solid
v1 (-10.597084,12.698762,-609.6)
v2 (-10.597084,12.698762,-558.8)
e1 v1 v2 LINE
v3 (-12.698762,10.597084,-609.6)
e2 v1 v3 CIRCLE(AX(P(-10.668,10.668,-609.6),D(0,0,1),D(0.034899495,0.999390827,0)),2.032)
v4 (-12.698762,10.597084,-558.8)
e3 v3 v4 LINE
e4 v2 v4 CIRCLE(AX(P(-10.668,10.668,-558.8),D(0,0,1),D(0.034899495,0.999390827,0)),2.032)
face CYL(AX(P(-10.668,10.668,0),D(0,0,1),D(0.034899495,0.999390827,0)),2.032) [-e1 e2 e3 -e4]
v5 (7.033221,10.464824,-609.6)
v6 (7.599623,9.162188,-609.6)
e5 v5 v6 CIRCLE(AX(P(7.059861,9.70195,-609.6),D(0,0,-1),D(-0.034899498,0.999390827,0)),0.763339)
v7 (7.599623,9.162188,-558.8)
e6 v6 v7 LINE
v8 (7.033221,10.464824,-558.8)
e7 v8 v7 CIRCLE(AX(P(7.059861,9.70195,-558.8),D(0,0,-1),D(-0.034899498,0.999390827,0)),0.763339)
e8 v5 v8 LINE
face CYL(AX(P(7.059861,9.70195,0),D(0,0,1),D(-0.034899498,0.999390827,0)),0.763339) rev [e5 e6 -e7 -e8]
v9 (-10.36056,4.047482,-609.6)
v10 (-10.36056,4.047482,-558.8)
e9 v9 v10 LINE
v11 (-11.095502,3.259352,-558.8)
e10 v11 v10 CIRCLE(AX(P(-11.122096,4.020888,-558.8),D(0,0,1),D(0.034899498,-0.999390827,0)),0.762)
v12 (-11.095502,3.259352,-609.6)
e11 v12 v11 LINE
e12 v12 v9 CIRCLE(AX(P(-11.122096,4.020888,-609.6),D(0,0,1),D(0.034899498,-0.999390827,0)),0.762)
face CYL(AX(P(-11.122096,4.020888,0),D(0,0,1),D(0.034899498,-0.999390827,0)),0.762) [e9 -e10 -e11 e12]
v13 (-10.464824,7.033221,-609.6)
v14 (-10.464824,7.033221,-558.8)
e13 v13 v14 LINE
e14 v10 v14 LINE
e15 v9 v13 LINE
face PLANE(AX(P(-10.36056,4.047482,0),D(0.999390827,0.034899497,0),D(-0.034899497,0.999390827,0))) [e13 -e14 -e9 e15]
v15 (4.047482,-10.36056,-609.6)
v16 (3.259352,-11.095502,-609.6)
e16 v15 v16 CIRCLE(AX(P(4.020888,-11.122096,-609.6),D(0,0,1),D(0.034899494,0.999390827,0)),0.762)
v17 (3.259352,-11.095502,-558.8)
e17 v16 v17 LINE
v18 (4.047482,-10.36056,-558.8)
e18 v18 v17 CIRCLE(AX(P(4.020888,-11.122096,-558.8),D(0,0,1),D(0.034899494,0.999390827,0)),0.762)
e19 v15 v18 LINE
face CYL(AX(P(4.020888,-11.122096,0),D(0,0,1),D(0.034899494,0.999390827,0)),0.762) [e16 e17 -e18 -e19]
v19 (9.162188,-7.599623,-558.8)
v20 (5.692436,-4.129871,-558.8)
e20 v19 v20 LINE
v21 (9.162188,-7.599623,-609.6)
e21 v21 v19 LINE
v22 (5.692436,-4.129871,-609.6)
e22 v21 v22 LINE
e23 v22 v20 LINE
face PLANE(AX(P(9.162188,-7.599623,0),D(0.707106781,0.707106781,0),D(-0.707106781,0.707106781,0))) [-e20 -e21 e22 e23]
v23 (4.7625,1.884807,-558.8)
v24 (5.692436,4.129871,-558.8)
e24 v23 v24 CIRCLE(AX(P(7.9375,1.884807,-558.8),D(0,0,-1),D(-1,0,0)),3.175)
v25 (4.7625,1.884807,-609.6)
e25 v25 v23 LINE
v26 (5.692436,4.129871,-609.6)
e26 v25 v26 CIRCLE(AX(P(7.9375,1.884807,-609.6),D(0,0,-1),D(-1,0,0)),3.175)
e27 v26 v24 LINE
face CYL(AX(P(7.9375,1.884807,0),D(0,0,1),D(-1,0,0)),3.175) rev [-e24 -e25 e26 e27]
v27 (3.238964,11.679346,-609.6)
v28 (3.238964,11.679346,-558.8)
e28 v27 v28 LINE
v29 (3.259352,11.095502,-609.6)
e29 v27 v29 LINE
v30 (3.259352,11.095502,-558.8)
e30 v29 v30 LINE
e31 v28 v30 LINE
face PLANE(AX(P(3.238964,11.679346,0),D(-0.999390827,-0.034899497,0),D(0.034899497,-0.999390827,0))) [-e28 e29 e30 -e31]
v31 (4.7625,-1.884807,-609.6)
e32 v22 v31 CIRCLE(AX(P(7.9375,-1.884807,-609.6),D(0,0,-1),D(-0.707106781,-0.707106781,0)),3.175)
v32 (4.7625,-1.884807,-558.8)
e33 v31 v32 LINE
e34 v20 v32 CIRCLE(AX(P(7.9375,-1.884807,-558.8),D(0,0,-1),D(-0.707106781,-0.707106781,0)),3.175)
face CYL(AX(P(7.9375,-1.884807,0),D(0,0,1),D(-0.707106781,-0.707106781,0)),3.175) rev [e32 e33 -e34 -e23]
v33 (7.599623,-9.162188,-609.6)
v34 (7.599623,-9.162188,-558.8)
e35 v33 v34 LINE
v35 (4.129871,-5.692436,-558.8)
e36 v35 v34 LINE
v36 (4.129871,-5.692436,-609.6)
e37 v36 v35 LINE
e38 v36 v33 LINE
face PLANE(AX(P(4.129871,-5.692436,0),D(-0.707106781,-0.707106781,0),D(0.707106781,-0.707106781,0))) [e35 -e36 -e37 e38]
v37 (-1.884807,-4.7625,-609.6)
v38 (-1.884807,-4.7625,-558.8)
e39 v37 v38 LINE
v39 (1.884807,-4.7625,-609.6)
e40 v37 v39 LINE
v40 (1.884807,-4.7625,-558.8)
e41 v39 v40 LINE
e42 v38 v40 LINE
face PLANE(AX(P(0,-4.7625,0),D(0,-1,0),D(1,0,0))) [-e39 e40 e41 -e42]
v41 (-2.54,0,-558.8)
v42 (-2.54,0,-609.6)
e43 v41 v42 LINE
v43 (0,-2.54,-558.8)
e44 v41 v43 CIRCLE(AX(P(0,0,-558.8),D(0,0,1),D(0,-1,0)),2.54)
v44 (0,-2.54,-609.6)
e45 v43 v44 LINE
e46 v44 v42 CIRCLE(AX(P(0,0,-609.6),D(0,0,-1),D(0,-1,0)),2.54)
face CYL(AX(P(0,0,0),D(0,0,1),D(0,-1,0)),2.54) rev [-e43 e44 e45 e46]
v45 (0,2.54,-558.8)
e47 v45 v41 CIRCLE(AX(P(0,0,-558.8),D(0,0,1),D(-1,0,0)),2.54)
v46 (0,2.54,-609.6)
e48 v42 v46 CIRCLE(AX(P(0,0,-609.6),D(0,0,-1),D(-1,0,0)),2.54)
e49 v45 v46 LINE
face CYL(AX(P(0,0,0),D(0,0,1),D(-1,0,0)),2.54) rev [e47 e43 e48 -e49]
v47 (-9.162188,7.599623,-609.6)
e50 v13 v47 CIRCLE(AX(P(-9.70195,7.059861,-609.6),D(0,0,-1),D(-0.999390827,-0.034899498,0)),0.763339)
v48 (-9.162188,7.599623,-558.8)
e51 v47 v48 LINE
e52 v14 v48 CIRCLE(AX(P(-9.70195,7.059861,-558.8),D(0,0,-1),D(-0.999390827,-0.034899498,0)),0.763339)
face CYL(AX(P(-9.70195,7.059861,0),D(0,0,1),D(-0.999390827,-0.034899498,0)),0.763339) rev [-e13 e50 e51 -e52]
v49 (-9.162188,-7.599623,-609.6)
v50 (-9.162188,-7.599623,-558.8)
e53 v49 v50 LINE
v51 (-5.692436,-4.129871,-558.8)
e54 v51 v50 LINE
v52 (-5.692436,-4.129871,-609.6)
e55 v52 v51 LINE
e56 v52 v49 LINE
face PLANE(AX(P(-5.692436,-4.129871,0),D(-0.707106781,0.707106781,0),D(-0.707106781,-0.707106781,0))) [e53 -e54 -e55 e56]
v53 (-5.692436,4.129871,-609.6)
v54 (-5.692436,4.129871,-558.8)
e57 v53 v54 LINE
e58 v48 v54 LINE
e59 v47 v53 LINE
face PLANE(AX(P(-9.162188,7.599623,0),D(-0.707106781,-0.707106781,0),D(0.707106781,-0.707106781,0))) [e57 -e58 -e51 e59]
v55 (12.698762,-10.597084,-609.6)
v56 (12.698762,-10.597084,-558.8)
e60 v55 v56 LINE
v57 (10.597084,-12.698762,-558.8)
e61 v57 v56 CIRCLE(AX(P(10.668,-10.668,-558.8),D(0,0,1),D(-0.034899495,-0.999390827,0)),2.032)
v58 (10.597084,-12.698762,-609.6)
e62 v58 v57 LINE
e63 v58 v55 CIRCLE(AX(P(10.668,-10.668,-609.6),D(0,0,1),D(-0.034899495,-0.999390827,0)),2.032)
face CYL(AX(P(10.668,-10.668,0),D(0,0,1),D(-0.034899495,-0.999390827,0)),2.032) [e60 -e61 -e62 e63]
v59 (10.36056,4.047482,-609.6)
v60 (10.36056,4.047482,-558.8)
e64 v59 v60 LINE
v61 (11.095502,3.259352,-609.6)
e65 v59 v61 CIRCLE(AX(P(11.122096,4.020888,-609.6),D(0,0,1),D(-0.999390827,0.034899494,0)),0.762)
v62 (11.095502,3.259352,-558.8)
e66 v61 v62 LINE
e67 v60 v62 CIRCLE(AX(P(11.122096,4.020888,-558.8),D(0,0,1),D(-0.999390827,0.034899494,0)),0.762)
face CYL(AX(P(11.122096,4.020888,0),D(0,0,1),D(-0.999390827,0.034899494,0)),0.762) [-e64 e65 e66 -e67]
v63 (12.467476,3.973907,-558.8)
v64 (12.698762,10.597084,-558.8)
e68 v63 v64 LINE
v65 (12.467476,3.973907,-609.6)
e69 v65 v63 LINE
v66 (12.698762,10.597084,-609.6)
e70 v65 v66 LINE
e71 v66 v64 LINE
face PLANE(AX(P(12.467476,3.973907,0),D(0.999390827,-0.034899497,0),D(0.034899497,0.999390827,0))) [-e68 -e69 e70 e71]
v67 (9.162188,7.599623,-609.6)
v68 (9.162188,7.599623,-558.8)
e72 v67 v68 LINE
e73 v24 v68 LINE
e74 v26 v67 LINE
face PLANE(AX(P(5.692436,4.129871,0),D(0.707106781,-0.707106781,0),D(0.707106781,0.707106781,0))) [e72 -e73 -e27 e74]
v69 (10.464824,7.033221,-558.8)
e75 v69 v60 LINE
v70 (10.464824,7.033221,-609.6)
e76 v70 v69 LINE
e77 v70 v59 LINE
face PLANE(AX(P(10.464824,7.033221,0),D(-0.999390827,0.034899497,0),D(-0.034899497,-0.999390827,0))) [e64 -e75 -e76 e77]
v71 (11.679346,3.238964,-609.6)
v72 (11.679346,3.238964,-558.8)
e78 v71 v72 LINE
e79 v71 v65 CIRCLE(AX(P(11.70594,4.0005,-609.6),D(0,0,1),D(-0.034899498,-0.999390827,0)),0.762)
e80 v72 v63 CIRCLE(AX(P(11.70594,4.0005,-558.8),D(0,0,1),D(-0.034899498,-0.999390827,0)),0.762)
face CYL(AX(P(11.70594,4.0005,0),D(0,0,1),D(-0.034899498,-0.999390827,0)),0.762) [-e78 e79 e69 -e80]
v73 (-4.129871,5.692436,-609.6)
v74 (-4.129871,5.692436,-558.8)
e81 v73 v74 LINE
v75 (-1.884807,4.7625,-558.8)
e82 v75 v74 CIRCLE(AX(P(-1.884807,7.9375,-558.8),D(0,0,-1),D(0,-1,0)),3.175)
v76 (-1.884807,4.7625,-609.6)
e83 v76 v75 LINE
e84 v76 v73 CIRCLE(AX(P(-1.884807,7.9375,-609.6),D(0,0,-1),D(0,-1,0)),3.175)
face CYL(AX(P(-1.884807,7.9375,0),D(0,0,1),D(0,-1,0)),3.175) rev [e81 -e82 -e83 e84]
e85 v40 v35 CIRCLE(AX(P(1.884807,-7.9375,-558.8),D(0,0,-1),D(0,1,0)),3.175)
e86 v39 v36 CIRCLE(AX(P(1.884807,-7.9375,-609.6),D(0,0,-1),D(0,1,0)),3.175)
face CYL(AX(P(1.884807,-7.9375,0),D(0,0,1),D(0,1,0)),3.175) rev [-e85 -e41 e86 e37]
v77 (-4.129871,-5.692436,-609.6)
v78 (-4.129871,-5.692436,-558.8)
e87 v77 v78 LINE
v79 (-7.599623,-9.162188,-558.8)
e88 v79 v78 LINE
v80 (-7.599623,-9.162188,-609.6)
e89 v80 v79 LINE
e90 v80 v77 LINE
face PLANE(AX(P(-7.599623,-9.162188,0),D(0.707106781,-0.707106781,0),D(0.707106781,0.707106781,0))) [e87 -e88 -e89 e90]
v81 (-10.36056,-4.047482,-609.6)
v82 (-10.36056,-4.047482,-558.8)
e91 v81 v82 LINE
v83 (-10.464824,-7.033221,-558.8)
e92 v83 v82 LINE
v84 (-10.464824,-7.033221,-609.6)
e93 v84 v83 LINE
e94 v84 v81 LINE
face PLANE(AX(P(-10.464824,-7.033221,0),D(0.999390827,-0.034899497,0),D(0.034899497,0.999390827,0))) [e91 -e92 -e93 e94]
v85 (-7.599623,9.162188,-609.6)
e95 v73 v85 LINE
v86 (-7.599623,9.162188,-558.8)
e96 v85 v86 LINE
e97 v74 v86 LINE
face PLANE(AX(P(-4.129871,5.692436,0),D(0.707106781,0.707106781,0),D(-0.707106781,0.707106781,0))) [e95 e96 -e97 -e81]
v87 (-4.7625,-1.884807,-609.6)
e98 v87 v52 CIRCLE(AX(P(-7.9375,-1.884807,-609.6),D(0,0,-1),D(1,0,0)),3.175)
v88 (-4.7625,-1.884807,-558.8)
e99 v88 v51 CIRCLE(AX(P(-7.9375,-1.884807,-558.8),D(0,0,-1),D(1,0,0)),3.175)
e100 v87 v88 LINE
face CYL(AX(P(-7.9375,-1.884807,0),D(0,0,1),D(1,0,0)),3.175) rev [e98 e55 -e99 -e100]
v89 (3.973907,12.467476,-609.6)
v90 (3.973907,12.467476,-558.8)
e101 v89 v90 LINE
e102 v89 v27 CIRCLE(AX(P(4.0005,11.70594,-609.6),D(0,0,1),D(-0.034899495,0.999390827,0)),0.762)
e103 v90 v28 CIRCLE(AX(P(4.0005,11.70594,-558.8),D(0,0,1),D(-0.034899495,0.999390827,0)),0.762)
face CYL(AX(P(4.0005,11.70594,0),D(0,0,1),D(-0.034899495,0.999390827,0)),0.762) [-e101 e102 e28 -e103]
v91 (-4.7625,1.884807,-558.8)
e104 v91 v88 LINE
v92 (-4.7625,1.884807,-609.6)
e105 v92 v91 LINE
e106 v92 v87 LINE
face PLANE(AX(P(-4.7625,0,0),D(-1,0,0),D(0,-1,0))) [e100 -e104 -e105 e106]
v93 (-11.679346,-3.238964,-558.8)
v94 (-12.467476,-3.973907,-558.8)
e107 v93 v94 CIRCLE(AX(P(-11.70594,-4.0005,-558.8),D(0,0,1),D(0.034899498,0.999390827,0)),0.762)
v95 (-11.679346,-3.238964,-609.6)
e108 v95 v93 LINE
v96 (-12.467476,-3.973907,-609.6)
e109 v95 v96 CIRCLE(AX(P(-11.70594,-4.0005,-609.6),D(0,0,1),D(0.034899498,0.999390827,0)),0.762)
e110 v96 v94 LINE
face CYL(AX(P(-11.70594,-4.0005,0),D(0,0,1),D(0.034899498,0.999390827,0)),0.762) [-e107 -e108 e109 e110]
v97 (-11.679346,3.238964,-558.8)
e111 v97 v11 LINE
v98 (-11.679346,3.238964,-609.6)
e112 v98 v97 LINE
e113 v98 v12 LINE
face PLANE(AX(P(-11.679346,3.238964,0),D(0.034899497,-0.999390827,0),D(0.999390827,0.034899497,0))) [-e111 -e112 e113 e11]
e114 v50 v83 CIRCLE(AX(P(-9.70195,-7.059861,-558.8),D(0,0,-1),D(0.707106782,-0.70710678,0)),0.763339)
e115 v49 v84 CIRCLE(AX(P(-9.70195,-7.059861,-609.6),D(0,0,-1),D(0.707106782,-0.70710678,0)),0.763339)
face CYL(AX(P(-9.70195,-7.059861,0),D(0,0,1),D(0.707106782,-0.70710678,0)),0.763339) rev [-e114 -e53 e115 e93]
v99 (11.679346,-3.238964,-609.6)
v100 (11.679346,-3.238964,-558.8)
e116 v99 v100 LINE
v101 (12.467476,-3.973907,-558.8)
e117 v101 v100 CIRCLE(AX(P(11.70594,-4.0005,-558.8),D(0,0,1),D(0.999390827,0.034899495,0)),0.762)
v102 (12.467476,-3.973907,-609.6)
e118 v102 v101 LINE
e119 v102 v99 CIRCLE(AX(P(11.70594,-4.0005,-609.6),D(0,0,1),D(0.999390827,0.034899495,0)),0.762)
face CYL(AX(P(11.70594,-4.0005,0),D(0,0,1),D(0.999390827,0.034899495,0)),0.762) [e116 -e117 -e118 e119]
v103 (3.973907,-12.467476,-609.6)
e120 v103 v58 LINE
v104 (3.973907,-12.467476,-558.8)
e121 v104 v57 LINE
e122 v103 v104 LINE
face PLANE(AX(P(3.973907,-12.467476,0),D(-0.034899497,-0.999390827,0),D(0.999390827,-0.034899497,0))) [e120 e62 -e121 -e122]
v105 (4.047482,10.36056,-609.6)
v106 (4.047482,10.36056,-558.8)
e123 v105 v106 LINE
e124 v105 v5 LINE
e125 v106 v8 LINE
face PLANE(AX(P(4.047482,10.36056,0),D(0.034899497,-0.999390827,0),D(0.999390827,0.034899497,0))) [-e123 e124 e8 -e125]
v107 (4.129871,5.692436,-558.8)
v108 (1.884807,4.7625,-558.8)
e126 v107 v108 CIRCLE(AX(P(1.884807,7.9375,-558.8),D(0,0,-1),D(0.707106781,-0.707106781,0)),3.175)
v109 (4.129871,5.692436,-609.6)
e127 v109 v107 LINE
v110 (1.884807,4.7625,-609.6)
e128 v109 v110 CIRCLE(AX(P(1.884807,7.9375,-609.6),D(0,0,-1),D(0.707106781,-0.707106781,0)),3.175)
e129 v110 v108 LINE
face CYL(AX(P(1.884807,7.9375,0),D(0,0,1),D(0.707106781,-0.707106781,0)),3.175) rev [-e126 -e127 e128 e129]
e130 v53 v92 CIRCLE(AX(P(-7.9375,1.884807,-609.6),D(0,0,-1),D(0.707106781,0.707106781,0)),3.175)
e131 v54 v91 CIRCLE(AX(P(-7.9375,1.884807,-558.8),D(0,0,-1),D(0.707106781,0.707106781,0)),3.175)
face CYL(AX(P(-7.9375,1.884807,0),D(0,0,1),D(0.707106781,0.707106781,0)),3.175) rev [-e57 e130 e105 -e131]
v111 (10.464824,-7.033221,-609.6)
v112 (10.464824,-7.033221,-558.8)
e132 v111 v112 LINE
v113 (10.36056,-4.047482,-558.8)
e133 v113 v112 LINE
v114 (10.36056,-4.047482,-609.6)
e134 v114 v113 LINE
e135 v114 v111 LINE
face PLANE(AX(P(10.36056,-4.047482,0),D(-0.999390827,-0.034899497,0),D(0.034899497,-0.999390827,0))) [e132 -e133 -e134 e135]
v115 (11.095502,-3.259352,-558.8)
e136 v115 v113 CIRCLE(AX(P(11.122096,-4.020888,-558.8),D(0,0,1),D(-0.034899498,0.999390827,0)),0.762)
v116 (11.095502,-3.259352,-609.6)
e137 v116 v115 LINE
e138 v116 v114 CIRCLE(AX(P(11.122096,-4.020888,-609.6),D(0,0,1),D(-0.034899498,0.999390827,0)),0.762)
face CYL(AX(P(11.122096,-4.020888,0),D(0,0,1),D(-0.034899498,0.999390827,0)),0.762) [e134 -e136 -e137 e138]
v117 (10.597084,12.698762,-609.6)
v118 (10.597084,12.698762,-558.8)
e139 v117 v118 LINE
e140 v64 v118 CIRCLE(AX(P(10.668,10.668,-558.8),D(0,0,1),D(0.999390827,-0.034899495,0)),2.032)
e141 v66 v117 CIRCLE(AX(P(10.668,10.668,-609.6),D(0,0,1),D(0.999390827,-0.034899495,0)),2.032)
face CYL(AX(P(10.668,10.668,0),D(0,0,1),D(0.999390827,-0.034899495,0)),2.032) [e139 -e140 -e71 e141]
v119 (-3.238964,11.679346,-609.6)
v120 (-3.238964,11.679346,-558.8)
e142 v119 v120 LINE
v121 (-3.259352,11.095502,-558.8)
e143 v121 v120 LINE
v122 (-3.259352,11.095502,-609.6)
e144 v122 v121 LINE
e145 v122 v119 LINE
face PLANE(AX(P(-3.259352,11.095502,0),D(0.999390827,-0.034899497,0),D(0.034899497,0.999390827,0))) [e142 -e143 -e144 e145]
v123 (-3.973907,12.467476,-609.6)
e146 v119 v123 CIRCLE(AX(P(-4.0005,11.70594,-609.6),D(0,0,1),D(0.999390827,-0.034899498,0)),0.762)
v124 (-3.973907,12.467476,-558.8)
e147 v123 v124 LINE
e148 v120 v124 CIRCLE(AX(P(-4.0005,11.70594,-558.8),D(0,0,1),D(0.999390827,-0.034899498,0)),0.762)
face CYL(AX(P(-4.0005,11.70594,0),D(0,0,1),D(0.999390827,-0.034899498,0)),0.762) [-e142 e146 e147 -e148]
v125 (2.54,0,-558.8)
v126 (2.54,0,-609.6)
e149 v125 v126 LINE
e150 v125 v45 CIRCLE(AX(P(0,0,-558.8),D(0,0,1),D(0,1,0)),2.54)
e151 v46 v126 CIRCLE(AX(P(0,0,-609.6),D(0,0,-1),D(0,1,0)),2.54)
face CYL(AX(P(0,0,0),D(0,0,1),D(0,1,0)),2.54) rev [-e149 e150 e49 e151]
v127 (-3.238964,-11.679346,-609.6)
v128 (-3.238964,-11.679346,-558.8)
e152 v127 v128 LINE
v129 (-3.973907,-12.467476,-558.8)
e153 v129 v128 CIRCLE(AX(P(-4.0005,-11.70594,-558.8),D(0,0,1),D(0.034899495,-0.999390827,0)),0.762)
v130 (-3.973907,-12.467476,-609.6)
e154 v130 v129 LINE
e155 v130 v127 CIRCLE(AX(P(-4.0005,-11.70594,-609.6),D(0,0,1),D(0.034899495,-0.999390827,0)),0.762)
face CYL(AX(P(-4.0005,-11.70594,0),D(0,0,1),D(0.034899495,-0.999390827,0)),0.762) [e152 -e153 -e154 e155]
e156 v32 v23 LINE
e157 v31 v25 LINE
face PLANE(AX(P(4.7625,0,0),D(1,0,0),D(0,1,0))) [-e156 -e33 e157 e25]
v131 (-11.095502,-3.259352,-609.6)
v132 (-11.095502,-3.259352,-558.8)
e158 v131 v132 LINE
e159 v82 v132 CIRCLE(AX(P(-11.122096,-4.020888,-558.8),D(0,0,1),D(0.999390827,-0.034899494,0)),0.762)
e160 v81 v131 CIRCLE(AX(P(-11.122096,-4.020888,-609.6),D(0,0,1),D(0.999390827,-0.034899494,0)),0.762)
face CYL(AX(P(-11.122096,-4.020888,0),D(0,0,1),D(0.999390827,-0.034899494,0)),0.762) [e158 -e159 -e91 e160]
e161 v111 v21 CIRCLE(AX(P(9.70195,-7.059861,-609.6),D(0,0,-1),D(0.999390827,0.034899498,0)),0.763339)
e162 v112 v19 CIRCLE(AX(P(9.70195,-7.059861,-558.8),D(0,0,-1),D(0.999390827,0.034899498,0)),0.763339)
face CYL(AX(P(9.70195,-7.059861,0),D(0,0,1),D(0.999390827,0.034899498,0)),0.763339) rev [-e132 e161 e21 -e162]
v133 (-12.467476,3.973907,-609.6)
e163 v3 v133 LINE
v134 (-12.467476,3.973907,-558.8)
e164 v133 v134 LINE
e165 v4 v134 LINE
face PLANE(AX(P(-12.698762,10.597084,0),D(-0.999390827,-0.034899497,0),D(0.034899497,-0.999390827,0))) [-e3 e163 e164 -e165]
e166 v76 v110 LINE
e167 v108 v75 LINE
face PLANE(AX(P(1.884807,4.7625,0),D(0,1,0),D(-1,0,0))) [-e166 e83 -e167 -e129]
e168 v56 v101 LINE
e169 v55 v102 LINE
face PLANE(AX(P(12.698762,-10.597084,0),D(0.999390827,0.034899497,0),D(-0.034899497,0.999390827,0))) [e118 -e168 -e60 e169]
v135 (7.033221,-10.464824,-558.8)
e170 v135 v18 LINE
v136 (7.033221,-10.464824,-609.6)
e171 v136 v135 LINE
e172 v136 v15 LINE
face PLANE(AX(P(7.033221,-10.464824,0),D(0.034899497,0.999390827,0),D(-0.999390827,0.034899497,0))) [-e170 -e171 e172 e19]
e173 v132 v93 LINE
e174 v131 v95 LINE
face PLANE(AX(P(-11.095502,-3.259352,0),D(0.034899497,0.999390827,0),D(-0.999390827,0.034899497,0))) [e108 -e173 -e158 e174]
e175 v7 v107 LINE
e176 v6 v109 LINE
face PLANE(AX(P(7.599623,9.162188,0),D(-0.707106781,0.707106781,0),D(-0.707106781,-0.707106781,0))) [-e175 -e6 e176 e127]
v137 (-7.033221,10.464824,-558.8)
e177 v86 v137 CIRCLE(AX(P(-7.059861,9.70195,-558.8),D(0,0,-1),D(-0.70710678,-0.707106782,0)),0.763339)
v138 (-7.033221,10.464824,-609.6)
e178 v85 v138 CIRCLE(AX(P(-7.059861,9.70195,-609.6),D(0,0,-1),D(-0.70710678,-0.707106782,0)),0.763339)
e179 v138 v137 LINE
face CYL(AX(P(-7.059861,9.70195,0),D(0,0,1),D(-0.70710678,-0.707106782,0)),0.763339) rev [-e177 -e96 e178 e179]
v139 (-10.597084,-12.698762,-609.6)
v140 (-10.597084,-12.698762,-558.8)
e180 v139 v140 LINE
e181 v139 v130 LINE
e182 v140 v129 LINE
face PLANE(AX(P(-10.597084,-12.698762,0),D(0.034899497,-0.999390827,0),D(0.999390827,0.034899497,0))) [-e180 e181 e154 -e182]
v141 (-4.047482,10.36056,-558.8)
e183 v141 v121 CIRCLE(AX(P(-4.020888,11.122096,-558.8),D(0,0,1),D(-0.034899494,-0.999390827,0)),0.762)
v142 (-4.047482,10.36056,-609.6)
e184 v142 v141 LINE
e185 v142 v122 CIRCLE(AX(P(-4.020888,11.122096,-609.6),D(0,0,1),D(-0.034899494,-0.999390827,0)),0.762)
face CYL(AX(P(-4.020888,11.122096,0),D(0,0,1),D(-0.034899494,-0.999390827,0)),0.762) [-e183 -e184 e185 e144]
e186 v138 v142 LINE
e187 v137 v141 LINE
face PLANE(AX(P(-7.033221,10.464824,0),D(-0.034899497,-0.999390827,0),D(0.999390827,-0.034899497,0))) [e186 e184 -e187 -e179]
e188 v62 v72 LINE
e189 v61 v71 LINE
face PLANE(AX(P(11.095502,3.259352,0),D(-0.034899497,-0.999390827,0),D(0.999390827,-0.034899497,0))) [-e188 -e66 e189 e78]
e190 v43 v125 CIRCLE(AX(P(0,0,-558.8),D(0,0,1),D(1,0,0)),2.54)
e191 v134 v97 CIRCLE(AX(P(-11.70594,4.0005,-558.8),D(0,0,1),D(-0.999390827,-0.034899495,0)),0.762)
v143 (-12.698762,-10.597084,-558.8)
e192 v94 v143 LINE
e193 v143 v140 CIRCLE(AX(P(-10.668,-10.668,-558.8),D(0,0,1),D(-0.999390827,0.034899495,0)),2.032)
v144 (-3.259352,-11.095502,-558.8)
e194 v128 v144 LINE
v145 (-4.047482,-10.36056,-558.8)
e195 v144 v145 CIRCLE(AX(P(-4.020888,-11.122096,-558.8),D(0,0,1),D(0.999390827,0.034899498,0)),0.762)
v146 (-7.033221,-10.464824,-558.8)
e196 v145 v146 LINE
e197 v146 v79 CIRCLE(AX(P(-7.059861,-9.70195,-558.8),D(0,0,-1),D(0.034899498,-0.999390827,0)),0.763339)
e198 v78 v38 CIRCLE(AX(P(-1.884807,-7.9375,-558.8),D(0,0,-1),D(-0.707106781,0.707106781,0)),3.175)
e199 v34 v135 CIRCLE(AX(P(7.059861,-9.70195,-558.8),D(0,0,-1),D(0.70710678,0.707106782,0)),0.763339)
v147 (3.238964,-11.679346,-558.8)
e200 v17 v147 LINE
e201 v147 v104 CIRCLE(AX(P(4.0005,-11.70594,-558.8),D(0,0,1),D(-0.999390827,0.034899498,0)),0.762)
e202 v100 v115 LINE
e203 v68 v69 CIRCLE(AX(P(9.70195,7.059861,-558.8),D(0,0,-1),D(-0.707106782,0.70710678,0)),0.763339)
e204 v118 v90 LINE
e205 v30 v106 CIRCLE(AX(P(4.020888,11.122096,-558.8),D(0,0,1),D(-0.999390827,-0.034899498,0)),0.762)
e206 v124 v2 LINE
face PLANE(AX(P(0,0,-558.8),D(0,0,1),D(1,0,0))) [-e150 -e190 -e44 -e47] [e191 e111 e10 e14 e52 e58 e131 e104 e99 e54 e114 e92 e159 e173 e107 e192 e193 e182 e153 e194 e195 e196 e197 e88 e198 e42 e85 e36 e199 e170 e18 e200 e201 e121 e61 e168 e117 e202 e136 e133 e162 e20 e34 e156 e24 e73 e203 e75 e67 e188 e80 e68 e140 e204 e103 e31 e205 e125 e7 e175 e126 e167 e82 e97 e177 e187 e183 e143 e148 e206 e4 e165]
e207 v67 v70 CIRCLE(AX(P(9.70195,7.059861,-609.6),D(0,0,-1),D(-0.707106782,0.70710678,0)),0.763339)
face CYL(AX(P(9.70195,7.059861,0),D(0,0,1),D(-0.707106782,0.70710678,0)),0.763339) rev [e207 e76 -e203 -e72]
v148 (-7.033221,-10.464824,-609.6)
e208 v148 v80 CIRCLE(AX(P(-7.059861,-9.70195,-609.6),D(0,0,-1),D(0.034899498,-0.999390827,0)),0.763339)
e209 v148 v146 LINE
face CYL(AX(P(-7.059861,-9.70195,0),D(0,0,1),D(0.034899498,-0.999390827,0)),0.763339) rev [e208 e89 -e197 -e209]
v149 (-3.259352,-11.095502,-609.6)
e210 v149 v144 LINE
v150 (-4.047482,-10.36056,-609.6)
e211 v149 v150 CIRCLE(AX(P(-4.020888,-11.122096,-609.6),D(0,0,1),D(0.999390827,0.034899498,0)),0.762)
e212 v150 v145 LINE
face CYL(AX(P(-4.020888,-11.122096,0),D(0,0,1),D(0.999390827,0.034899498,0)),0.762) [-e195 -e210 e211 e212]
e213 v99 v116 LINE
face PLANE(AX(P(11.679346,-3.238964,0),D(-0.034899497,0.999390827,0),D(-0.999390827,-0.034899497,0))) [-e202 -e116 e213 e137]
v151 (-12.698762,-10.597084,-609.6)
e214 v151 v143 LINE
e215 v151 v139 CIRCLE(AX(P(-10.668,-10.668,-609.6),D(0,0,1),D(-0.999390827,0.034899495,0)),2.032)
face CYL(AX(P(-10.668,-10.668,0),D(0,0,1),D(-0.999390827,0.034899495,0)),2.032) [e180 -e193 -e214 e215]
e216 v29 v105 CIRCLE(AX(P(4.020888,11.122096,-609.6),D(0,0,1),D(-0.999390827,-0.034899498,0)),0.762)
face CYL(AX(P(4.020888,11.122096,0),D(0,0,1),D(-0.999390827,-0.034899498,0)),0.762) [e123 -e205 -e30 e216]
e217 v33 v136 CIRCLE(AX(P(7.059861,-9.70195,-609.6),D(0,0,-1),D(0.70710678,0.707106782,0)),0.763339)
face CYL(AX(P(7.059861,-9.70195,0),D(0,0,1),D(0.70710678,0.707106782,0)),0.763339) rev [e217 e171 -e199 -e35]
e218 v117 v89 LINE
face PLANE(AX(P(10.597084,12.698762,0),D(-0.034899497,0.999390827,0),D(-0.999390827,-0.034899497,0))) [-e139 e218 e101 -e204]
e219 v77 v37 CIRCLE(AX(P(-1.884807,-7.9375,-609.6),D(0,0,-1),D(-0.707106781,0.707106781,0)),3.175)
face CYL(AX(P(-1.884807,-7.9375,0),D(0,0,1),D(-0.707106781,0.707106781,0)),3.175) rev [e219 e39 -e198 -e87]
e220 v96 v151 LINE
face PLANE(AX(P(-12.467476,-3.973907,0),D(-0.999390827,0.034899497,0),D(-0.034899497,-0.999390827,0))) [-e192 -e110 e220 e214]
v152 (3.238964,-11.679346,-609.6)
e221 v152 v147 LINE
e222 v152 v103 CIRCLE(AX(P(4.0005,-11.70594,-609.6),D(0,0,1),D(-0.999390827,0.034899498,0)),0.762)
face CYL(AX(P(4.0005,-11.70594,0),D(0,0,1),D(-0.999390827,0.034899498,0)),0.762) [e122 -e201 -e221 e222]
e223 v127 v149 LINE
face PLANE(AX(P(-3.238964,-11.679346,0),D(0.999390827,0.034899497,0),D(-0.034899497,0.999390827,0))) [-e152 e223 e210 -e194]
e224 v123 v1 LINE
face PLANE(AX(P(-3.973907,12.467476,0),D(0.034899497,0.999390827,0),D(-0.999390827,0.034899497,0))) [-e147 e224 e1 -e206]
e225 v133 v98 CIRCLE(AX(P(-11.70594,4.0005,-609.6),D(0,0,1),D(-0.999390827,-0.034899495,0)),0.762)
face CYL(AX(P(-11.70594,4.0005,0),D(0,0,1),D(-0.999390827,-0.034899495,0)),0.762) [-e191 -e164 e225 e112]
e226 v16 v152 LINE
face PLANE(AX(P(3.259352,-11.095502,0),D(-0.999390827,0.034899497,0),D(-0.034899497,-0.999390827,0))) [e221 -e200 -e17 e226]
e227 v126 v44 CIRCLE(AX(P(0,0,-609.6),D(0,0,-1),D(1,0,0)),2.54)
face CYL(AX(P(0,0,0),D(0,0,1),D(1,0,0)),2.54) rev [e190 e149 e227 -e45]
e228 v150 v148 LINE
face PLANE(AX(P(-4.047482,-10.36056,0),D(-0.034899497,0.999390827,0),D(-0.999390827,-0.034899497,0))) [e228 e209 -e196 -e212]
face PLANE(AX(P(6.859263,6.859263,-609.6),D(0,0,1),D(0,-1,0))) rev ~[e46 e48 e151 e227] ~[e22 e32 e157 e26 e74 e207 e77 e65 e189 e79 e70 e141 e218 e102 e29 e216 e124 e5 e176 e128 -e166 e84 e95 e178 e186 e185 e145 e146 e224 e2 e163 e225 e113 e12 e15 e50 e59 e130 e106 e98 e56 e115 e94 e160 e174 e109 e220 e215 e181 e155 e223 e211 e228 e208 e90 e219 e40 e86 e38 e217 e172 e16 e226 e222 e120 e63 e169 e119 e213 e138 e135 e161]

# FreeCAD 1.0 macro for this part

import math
import FreeCAD as App
import Part
import Sketcher
Q = App.Units.Quantity

doc = App.newDocument("Part")
body = doc.addObject("PartDesign::Body", "Body")

# Sketch on XY plane
sketch1 = doc.addObject("Sketcher::SketchObject", "Sketch")
body.addObject(sketch1)
sketch1.AttachmentSupport = (doc.XY_Plane, [""])
sketch1.MapMode = "FlatFace"
sketch1.addGeometry([
    Part.LineSegment(App.Vector(0, 4.7625, 0), App.Vector(-1.884807, 4.7625, 0)),  # 0
    Part.ArcOfCircle(Part.Circle(App.Vector(-1.884807, 7.9375, 0), App.Vector(0, 0, 1), 3.175), math.radians(-135), math.radians(-90)),  # 1
    Part.LineSegment(App.Vector(-4.129871, 5.692436, 0), App.Vector(-7.599623, 9.162188, 0)),  # 2
    Part.ArcOfCircle(Part.Circle(App.Vector(-7.059861, 9.70195, 0), App.Vector(0, 0, 1), 0.763339), math.radians(88), math.radians(225)),  # 3
    Part.LineSegment(App.Vector(-7.033221, 10.464824, 0), App.Vector(-4.047482, 10.36056, 0)),  # 4
    Part.ArcOfCircle(Part.Circle(App.Vector(-4.020888, 11.122096, 0), App.Vector(0, 0, 1), 0.762), math.radians(-92), math.radians(-2)),  # 5
    Part.LineSegment(App.Vector(-3.259352, 11.095502, 0), App.Vector(-3.238964, 11.679346, 0)),  # 6
    Part.ArcOfCircle(Part.Circle(App.Vector(-4.0005, 11.70594, 0), App.Vector(0, 0, 1), 0.762), math.radians(-2), math.radians(88)),  # 7
    Part.LineSegment(App.Vector(-3.973907, 12.467476, 0), App.Vector(-10.597084, 12.698762, 0)),  # 8
    Part.ArcOfCircle(Part.Circle(App.Vector(-10.668, 10.668, 0), App.Vector(0, 0, 1), 2.032), math.radians(88), math.radians(182)),  # 9
    Part.LineSegment(App.Vector(-12.698762, 10.597084, 0), App.Vector(-12.467476, 3.973907, 0)),  # 10
    Part.ArcOfCircle(Part.Circle(App.Vector(-11.70594, 4.0005, 0), App.Vector(0, 0, 1), 0.762), math.radians(-178), math.radians(-88)),  # 11
    Part.LineSegment(App.Vector(-11.679346, 3.238964, 0), App.Vector(-11.095502, 3.259352, 0)),  # 12
    Part.ArcOfCircle(Part.Circle(App.Vector(-11.122096, 4.020888, 0), App.Vector(0, 0, 1), 0.762), math.radians(-88), math.radians(2)),  # 13
    Part.LineSegment(App.Vector(-10.36056, 4.047482, 0), App.Vector(-10.464824, 7.033221, 0)),  # 14
    Part.ArcOfCircle(Part.Circle(App.Vector(-9.70195, 7.059861, 0), App.Vector(0, 0, 1), 0.763339), math.radians(45), math.radians(182)),  # 15
    Part.LineSegment(App.Vector(-9.162188, 7.599623, 0), App.Vector(-5.692436, 4.129871, 0)),  # 16
    Part.ArcOfCircle(Part.Circle(App.Vector(-7.9375, 1.884807, 0), App.Vector(0, 0, 1), 3.175), math.radians(0), math.radians(45)),  # 17
    Part.LineSegment(App.Vector(-4.7625, 1.884807, 0), App.Vector(-4.7625, 0, 0)),  # 18
    Part.LineSegment(App.Vector(-4.7625, 0, 0), App.Vector(-2.54, 0, 0)),  # 19
    Part.ArcOfCircle(Part.Circle(App.Vector(0, 0, 0), App.Vector(0, 0, 1), 2.54), math.radians(90), math.radians(180)),  # 20
    Part.LineSegment(App.Vector(0, 2.54, 0), App.Vector(0, 4.7625, 0)),  # 21
], False)
sketch1.addConstraint([
    Sketcher.Constraint("Tangent", 0, 2, 1, 2),
    Sketcher.Constraint("Tangent", 1, 1, 2, 1),
    Sketcher.Constraint("Tangent", 2, 2, 3, 2),
    Sketcher.Constraint("Tangent", 3, 1, 4, 1),
    Sketcher.Constraint("Tangent", 4, 2, 5, 1),
    Sketcher.Constraint("Tangent", 5, 2, 6, 1),
    Sketcher.Constraint("Tangent", 6, 2, 7, 1),
    Sketcher.Constraint("Tangent", 7, 2, 8, 1),
    Sketcher.Constraint("Tangent", 8, 2, 9, 1),
    Sketcher.Constraint("Tangent", 9, 2, 10, 1),
    Sketcher.Constraint("Tangent", 10, 2, 11, 1),
    Sketcher.Constraint("Tangent", 11, 2, 12, 1),
    Sketcher.Constraint("Tangent", 12, 2, 13, 1),
    Sketcher.Constraint("Tangent", 13, 2, 14, 1),
    Sketcher.Constraint("Tangent", 14, 2, 15, 2),
    Sketcher.Constraint("Tangent", 15, 1, 16, 1),
    Sketcher.Constraint("Tangent", 16, 2, 17, 2),
    Sketcher.Constraint("Tangent", 17, 1, 18, 1),
    Sketcher.Constraint("Coincident", 18, 2, 19, 1),
    Sketcher.Constraint("Coincident", 19, 2, 20, 2),
    Sketcher.Constraint("Coincident", 20, 1, 21, 1),
    Sketcher.Constraint("Coincident", 21, 2, 0, 1),
    Sketcher.Constraint("Horizontal", 0),
    Sketcher.Constraint("Vertical", 18),
    Sketcher.Constraint("Horizontal", 19),
    Sketcher.Constraint("Vertical", 21),
    Sketcher.Constraint("Coincident", 20, 3, -1, 1),
    Sketcher.Constraint("Equal", 5, 7),
    Sketcher.Constraint("Equal", 7, 11),
    Sketcher.Constraint("Equal", 11, 13),
    Sketcher.Constraint("Equal", 3, 15),
    Sketcher.Constraint("Equal", 1, 17),
    Sketcher.Constraint("PointOnObject", 18, 2, -1),
    Sketcher.Constraint("PointOnObject", 20, 1, -2),
    Sketcher.Constraint("Perpendicular", 4, 6),
    Sketcher.Constraint("Perpendicular", 6, 8),
    Sketcher.Constraint("Perpendicular", 10, 12),
    Sketcher.Constraint("Perpendicular", 12, 14),
    Sketcher.Constraint("Parallel", 2, 16),
    Sketcher.Constraint("Equal", 0, 18),
    Sketcher.Constraint("Equal", 19, 21),
    Sketcher.Constraint("Equal", 8, 10),
    Sketcher.Constraint("Equal", 6, 12),
    Sketcher.Constraint("Equal", 4, 14),
    Sketcher.Constraint("Equal", 2, 16),
    Sketcher.Constraint("Radius", 20, Q("0.1 in")),
    Sketcher.Constraint("Radius", 5, Q("0.03 in")),
    Sketcher.Constraint("Radius", 9, Q("0.08 in")),
    Sketcher.Constraint("Angle", 2, Q("135 deg")),
    Sketcher.Constraint("Angle", 4, Q("-2 deg")),
    Sketcher.Constraint("Radius", 1, Q("0.125 in")),
    Sketcher.Constraint("DistanceX", 9, 3, -1, 1, Q("0.42 in")),
    Sketcher.Constraint("Distance", 6, Q("0.023 in")),
    Sketcher.Constraint("DistanceX", 19, 1, 19, 2, Q("0.0875 in")),
    Sketcher.Constraint("Radius", 3, Q("0.763339 mm")),
    Sketcher.Constraint("DistanceY", 11, 3, 1, 3, Q("0.155 in")),
    Sketcher.Constraint("DistanceY", 15, 3, 8, 2, Q("5.638901 mm")),
])
pad1 = doc.addObject("PartDesign::Pad", "Pad")
body.addObject(pad1)
pad1.Profile = sketch1
pad1.Length = Q("48 in")
pad1.Midplane = True
doc.recompute()

polarpattern = doc.addObject("PartDesign::PolarPattern", "PolarPattern")
body.addObject(polarpattern)
polarpattern.Originals = [pad1]
polarpattern.Axis = (doc.Z_Axis, [""])
polarpattern.Angle = 360
polarpattern.Occurrences = 4
body.Tip = polarpattern

# Sketch on XY plane
sketch2 = doc.addObject("Sketcher::SketchObject", "Sketch001")
body.addObject(sketch2)
sketch2.AttachmentSupport = (doc.XY_Plane, [""])
sketch2.MapMode = "FlatFace"
sketch2.AttachmentOffset = App.Placement(App.Vector(0, 0, 24 * 25.4), App.Rotation())
sketch2.addGeometry([
    Part.LineSegment(App.Vector(1.884807, 4.7625, 0), App.Vector(-1.884807, 4.7625, 0)),  # 0
    Part.ArcOfCircle(Part.Circle(App.Vector(-1.884807, 7.9375, 0), App.Vector(0, 0, 1), 3.175), math.radians(-135), math.radians(-90)),  # 1
    Part.LineSegment(App.Vector(-4.129871, 5.692436, 0), App.Vector(-7.599623, 9.162188, 0)),  # 2
    Part.ArcOfCircle(Part.Circle(App.Vector(-7.059861, 9.70195, 0), App.Vector(0, 0, 1), 0.763339), math.radians(88), math.radians(225)),  # 3
    Part.LineSegment(App.Vector(-7.033221, 10.464824, 0), App.Vector(-4.047482, 10.36056, 0)),  # 4
    Part.ArcOfCircle(Part.Circle(App.Vector(-4.020888, 11.122096, 0), App.Vector(0, 0, 1), 0.762), math.radians(-92), math.radians(-2)),  # 5
    Part.LineSegment(App.Vector(-3.259352, 11.095502, 0), App.Vector(-3.238964, 11.679346, 0)),  # 6
    Part.ArcOfCircle(Part.Circle(App.Vector(-4.0005, 11.70594, 0), App.Vector(0, 0, 1), 0.762), math.radians(-2), math.radians(88)),  # 7
    Part.LineSegment(App.Vector(-3.973907, 12.467476, 0), App.Vector(-10.597084, 12.698762, 0)),  # 8
    Part.ArcOfCircle(Part.Circle(App.Vector(-10.668, 10.668, 0), App.Vector(0, 0, 1), 2.032), math.radians(88), math.radians(182)),  # 9
    Part.LineSegment(App.Vector(-12.698762, 10.597084, 0), App.Vector(-12.467476, 3.973907, 0)),  # 10
    Part.ArcOfCircle(Part.Circle(App.Vector(-11.70594, 4.0005, 0), App.Vector(0, 0, 1), 0.762), math.radians(-178), math.radians(-88)),  # 11
    Part.LineSegment(App.Vector(-11.679346, 3.238964, 0), App.Vector(-11.095502, 3.259352, 0)),  # 12
    Part.ArcOfCircle(Part.Circle(App.Vector(-11.122096, 4.020888, 0), App.Vector(0, 0, 1), 0.762), math.radians(-88), math.radians(2)),  # 13
    Part.LineSegment(App.Vector(-10.36056, 4.047482, 0), App.Vector(-10.464824, 7.033221, 0)),  # 14
    Part.ArcOfCircle(Part.Circle(App.Vector(-9.70195, 7.059861, 0), App.Vector(0, 0, 1), 0.763339), math.radians(45), math.radians(182)),  # 15
    Part.LineSegment(App.Vector(-9.162188, 7.599623, 0), App.Vector(-5.692436, 4.129871, 0)),  # 16
    Part.ArcOfCircle(Part.Circle(App.Vector(-7.9375, 1.884807, 0), App.Vector(0, 0, 1), 3.175), math.radians(0), math.radians(45)),  # 17
    Part.LineSegment(App.Vector(-4.7625, 1.884807, 0), App.Vector(-4.7625, -1.884807, 0)),  # 18
    Part.ArcOfCircle(Part.Circle(App.Vector(-7.9375, -1.884807, 0), App.Vector(0, 0, 1), 3.175), math.radians(-45), math.radians(0)),  # 19
    Part.LineSegment(App.Vector(-5.692436, -4.129871, 0), App.Vector(-9.162188, -7.599623, 0)),  # 20
    Part.ArcOfCircle(Part.Circle(App.Vector(-9.70195, -7.059861, 0), App.Vector(0, 0, 1), 0.763339), math.radians(178), math.radians(315)),  # 21
    Part.LineSegment(App.Vector(-10.464824, -7.033221, 0), App.Vector(-10.36056, -4.047482, 0)),  # 22
    Part.ArcOfCircle(Part.Circle(App.Vector(-11.122096, -4.020888, 0), App.Vector(0, 0, 1), 0.762), math.radians(-2), math.radians(88)),  # 23
    Part.LineSegment(App.Vector(-11.095502, -3.259352, 0), App.Vector(-11.679346, -3.238964, 0)),  # 24
    Part.ArcOfCircle(Part.Circle(App.Vector(-11.70594, -4.0005, 0), App.Vector(0, 0, 1), 0.762), math.radians(88), math.radians(178)),  # 25
    Part.LineSegment(App.Vector(-12.467476, -3.973907, 0), App.Vector(-12.698762, -10.597084, 0)),  # 26
    Part.ArcOfCircle(Part.Circle(App.Vector(-10.668, -10.668, 0), App.Vector(0, 0, 1), 2.032), math.radians(178), math.radians(272)),  # 27
    Part.LineSegment(App.Vector(-10.597084, -12.698762, 0), App.Vector(-3.973907, -12.467476, 0)),  # 28
    Part.ArcOfCircle(Part.Circle(App.Vector(-4.0005, -11.70594, 0), App.Vector(0, 0, 1), 0.762), math.radians(-88), math.radians(2)),  # 29
    Part.LineSegment(App.Vector(-3.238964, -11.679346, 0), App.Vector(-3.259352, -11.095502, 0)),  # 30
    Part.ArcOfCircle(Part.Circle(App.Vector(-4.020888, -11.122096, 0), App.Vector(0, 0, 1), 0.762), math.radians(2), math.radians(92)),  # 31
    Part.LineSegment(App.Vector(-4.047482, -10.36056, 0), App.Vector(-7.033221, -10.464824, 0)),  # 32
    Part.ArcOfCircle(Part.Circle(App.Vector(-7.059861, -9.70195, 0), App.Vector(0, 0, 1), 0.763339), math.radians(135), math.radians(272)),  # 33
    Part.LineSegment(App.Vector(-7.599623, -9.162188, 0), App.Vector(-4.129871, -5.692436, 0)),  # 34
    Part.ArcOfCircle(Part.Circle(App.Vector(-1.884807, -7.9375, 0), App.Vector(0, 0, 1), 3.175), math.radians(90), math.radians(135)),  # 35
    Part.LineSegment(App.Vector(-1.884807, -4.7625, 0), App.Vector(1.884807, -4.7625, 0)),  # 36
    Part.ArcOfCircle(Part.Circle(App.Vector(1.884807, -7.9375, 0), App.Vector(0, 0, 1), 3.175), math.radians(45), math.radians(90)),  # 37
    Part.LineSegment(App.Vector(4.129871, -5.692436, 0), App.Vector(7.599623, -9.162188, 0)),  # 38
    Part.ArcOfCircle(Part.Circle(App.Vector(7.059861, -9.70195, 0), App.Vector(0, 0, 1), 0.763339), math.radians(-92), math.radians(45)),  # 39
    Part.LineSegment(App.Vector(7.033221, -10.464824, 0), App.Vector(4.047482, -10.36056, 0)),  # 40
    Part.ArcOfCircle(Part.Circle(App.Vector(4.020888, -11.122096, 0), App.Vector(0, 0, 1), 0.762), math.radians(88), math.radians(178)),  # 41
    Part.LineSegment(App.Vector(3.259352, -11.095502, 0), App.Vector(3.238964, -11.679346, 0)),  # 42
    Part.ArcOfCircle(Part.Circle(App.Vector(4.0005, -11.70594, 0), App.Vector(0, 0, 1), 0.762), math.radians(178), math.radians(268)),  # 43
    Part.LineSegment(App.Vector(3.973907, -12.467476, 0), App.Vector(10.597084, -12.698762, 0)),  # 44
    Part.ArcOfCircle(Part.Circle(App.Vector(10.668, -10.668, 0), App.Vector(0, 0, 1), 2.032), math.radians(-92), math.radians(2)),  # 45
    Part.LineSegment(App.Vector(12.698762, -10.597084, 0), App.Vector(12.467476, -3.973907, 0)),  # 46
    Part.ArcOfCircle(Part.Circle(App.Vector(11.70594, -4.0005, 0), App.Vector(0, 0, 1), 0.762), math.radians(2), math.radians(92)),  # 47
    Part.LineSegment(App.Vector(11.679346, -3.238964, 0), App.Vector(11.095502, -3.259352, 0)),  # 48
    Part.ArcOfCircle(Part.Circle(App.Vector(11.122096, -4.020888, 0), App.Vector(0, 0, 1), 0.762), math.radians(92), math.radians(182)),  # 49
    Part.LineSegment(App.Vector(10.36056, -4.047482, 0), App.Vector(10.464824, -7.033221, 0)),  # 50
    Part.ArcOfCircle(Part.Circle(App.Vector(9.70195, -7.059861, 0), App.Vector(0, 0, 1), 0.763339), math.radians(-135), math.radians(2)),  # 51
    Part.LineSegment(App.Vector(9.162188, -7.599623, 0), App.Vector(5.692436, -4.129871, 0)),  # 52
    Part.ArcOfCircle(Part.Circle(App.Vector(7.9375, -1.884807, 0), App.Vector(0, 0, 1), 3.175), math.radians(180), math.radians(225)),  # 53
    Part.LineSegment(App.Vector(4.7625, -1.884807, 0), App.Vector(4.7625, 1.884807, 0)),  # 54
    Part.ArcOfCircle(Part.Circle(App.Vector(7.9375, 1.884807, 0), App.Vector(0, 0, 1), 3.175), math.radians(135), math.radians(180)),  # 55
    Part.LineSegment(App.Vector(5.692436, 4.129871, 0), App.Vector(9.162188, 7.599623, 0)),  # 56
    Part.ArcOfCircle(Part.Circle(App.Vector(9.70195, 7.059861, 0), App.Vector(0, 0, 1), 0.763339), math.radians(-2), math.radians(135)),  # 57
    Part.LineSegment(App.Vector(10.464824, 7.033221, 0), App.Vector(10.36056, 4.047482, 0)),  # 58
    Part.ArcOfCircle(Part.Circle(App.Vector(11.122096, 4.020888, 0), App.Vector(0, 0, 1), 0.762), math.radians(178), math.radians(268)),  # 59
    Part.LineSegment(App.Vector(11.095502, 3.259352, 0), App.Vector(11.679346, 3.238964, 0)),  # 60
    Part.ArcOfCircle(Part.Circle(App.Vector(11.70594, 4.0005, 0), App.Vector(0, 0, 1), 0.762), math.radians(-92), math.radians(-2)),  # 61
    Part.LineSegment(App.Vector(12.467476, 3.973907, 0), App.Vector(12.698762, 10.597084, 0)),  # 62
    Part.ArcOfCircle(Part.Circle(App.Vector(10.668, 10.668, 0), App.Vector(0, 0, 1), 2.032), math.radians(-2), math.radians(92)),  # 63
    Part.LineSegment(App.Vector(10.597084, 12.698762, 0), App.Vector(3.973907, 12.467476, 0)),  # 64
    Part.ArcOfCircle(Part.Circle(App.Vector(4.0005, 11.70594, 0), App.Vector(0, 0, 1), 0.762), math.radians(92), math.radians(182)),  # 65
    Part.LineSegment(App.Vector(3.238964, 11.679346, 0), App.Vector(3.259352, 11.095502, 0)),  # 66
    Part.ArcOfCircle(Part.Circle(App.Vector(4.020888, 11.122096, 0), App.Vector(0, 0, 1), 0.762), math.radians(-178), math.radians(-88)),  # 67
    Part.LineSegment(App.Vector(4.047482, 10.36056, 0), App.Vector(7.033221, 10.464824, 0)),  # 68
    Part.ArcOfCircle(Part.Circle(App.Vector(7.059861, 9.70195, 0), App.Vector(0, 0, 1), 0.763339), math.radians(-45), math.radians(92)),  # 69
    Part.LineSegment(App.Vector(7.599623, 9.162188, 0), App.Vector(4.129871, 5.692436, 0)),  # 70
    Part.ArcOfCircle(Part.Circle(App.Vector(1.884807, 7.9375, 0), App.Vector(0, 0, 1), 3.175), math.radians(-90), math.radians(-45)),  # 71
], False)
sketch2.addConstraint([
    Sketcher.Constraint("Tangent", 0, 2, 1, 2),
    Sketcher.Constraint("Tangent", 1, 1, 2, 1),
    Sketcher.Constraint("Tangent", 2, 2, 3, 2),
    Sketcher.Constraint("Tangent", 3, 1, 4, 1),
    Sketcher.Constraint("Tangent", 4, 2, 5, 1),
    Sketcher.Constraint("Tangent", 5, 2, 6, 1),
    Sketcher.Constraint("Tangent", 6, 2, 7, 1),
    Sketcher.Constraint("Tangent", 7, 2, 8, 1),
    Sketcher.Constraint("Tangent", 8, 2, 9, 1),
    Sketcher.Constraint("Tangent", 9, 2, 10, 1),
    Sketcher.Constraint("Tangent", 10, 2, 11, 1),
    Sketcher.Constraint("Tangent", 11, 2, 12, 1),
    Sketcher.Constraint("Tangent", 12, 2, 13, 1),
    Sketcher.Constraint("Tangent", 13, 2, 14, 1),
    Sketcher.Constraint("Tangent", 14, 2, 15, 2),
    Sketcher.Constraint("Tangent", 15, 1, 16, 1),
    Sketcher.Constraint("Tangent", 16, 2, 17, 2),
    Sketcher.Constraint("Tangent", 17, 1, 18, 1),
    Sketcher.Constraint("Tangent", 18, 2, 19, 2),
    Sketcher.Constraint("Tangent", 19, 1, 20, 1),
    Sketcher.Constraint("Tangent", 20, 2, 21, 2),
    Sketcher.Constraint("Tangent", 21, 1, 22, 1),
    Sketcher.Constraint("Tangent", 22, 2, 23, 1),
    Sketcher.Constraint("Tangent", 23, 2, 24, 1),
    Sketcher.Constraint("Tangent", 24, 2, 25, 1),
    Sketcher.Constraint("Tangent", 25, 2, 26, 1),
    Sketcher.Constraint("Tangent", 26, 2, 27, 1),
    Sketcher.Constraint("Tangent", 27, 2, 28, 1),
    Sketcher.Constraint("Tangent", 28, 2, 29, 1),
    Sketcher.Constraint("Tangent", 29, 2, 30, 1),
    Sketcher.Constraint("Tangent", 30, 2, 31, 1),
    Sketcher.Constraint("Tangent", 31, 2, 32, 1),
    Sketcher.Constraint("Tangent", 32, 2, 33, 2),
    Sketcher.Constraint("Tangent", 33, 1, 34, 1),
    Sketcher.Constraint("Tangent", 34, 2, 35, 2),
    Sketcher.Constraint("Tangent", 35, 1, 36, 1),
    Sketcher.Constraint("Tangent", 36, 2, 37, 2),
    Sketcher.Constraint("Tangent", 37, 1, 38, 1),
    Sketcher.Constraint("Tangent", 38, 2, 39, 2),
    Sketcher.Constraint("Tangent", 39, 1, 40, 1),
    Sketcher.Constraint("Tangent", 40, 2, 41, 1),
    Sketcher.Constraint("Tangent", 41, 2, 42, 1),
    Sketcher.Constraint("Tangent", 42, 2, 43, 1),
    Sketcher.Constraint("Tangent", 43, 2, 44, 1),
    Sketcher.Constraint("Tangent", 44, 2, 45, 1),
    Sketcher.Constraint("Tangent", 45, 2, 46, 1),
    Sketcher.Constraint("Tangent", 46, 2, 47, 1),
    Sketcher.Constraint("Tangent", 47, 2, 48, 1),
    Sketcher.Constraint("Tangent", 48, 2, 49, 1),
    Sketcher.Constraint("Tangent", 49, 2, 50, 1),
    Sketcher.Constraint("Tangent", 50, 2, 51, 2),
    Sketcher.Constraint("Tangent", 51, 1, 52, 1),
    Sketcher.Constraint("Tangent", 52, 2, 53, 2),
    Sketcher.Constraint("Tangent", 53, 1, 54, 1),
    Sketcher.Constraint("Tangent", 54, 2, 55, 2),
    Sketcher.Constraint("Tangent", 55, 1, 56, 1),
    Sketcher.Constraint("Tangent", 56, 2, 57, 2),
    Sketcher.Constraint("Tangent", 57, 1, 58, 1),
    Sketcher.Constraint("Tangent", 58, 2, 59, 1),
    Sketcher.Constraint("Tangent", 59, 2, 60, 1),
    Sketcher.Constraint("Tangent", 60, 2, 61, 1),
    Sketcher.Constraint("Tangent", 61, 2, 62, 1),
    Sketcher.Constraint("Tangent", 62, 2, 63, 1),
    Sketcher.Constraint("Tangent", 63, 2, 64, 1),
    Sketcher.Constraint("Tangent", 64, 2, 65, 1),
    Sketcher.Constraint("Tangent", 65, 2, 66, 1),
    Sketcher.Constraint("Tangent", 66, 2, 67, 1),
    Sketcher.Constraint("Tangent", 67, 2, 68, 1),
    Sketcher.Constraint("Tangent", 68, 2, 69, 2),
    Sketcher.Constraint("Tangent", 69, 1, 70, 1),
    Sketcher.Constraint("Tangent", 70, 2, 71, 2),
    Sketcher.Constraint("Tangent", 71, 1, 0, 1),
    Sketcher.Constraint("Horizontal", 0),
    Sketcher.Constraint("Vertical", 18),
    Sketcher.Constraint("Horizontal", 36),
    Sketcher.Constraint("Vertical", 54),
    Sketcher.Constraint("Equal", 5, 7),
    Sketcher.Constraint("Equal", 7, 11),
    Sketcher.Constraint("Equal", 11, 13),
    Sketcher.Constraint("Equal", 3, 15),
    Sketcher.Constraint("Equal", 1, 17),
    Sketcher.Constraint("Equal", 17, 19),
    Sketcher.Constraint("Equal", 15, 21),
    Sketcher.Constraint("Equal", 13, 23),
    Sketcher.Constraint("Equal", 23, 25),
    Sketcher.Constraint("Equal", 9, 27),
    Sketcher.Constraint("Equal", 25, 29),
    Sketcher.Constraint("Equal", 29, 31),
    Sketcher.Constraint("Equal", 21, 33),
    Sketcher.Constraint("Equal", 19, 35),
    Sketcher.Constraint("Equal", 35, 37),
    Sketcher.Constraint("Equal", 33, 39),
    Sketcher.Constraint("Equal", 31, 41),
    Sketcher.Constraint("Equal", 41, 43),
    Sketcher.Constraint("Equal", 27, 45),
    Sketcher.Constraint("Equal", 43, 47),
    Sketcher.Constraint("Equal", 47, 49),
    Sketcher.Constraint("Equal", 39, 51),
    Sketcher.Constraint("Equal", 37, 53),
    Sketcher.Constraint("Equal", 53, 55),
    Sketcher.Constraint("Equal", 51, 57),
    Sketcher.Constraint("Equal", 49, 59),
    Sketcher.Constraint("Equal", 59, 61),
    Sketcher.Constraint("Equal", 45, 63),
    Sketcher.Constraint("Equal", 61, 65),
    Sketcher.Constraint("Equal", 65, 67),
    Sketcher.Constraint("Equal", 57, 69),
    Sketcher.Constraint("Equal", 55, 71),
    Sketcher.Constraint("Symmetric", 1, 3, 37, 3, -1, 1),
    Sketcher.Constraint("Symmetric", 3, 3, 39, 3, -1, 1),
    Sketcher.Constraint("Symmetric", 5, 3, 41, 3, -1, 1),
    Sketcher.Constraint("Symmetric", 7, 3, 43, 3, -1, 1),
    Sketcher.Constraint("Symmetric", 9, 3, 45, 3, -1, 1),
    Sketcher.Constraint("Symmetric", 11, 3, 47, 3, -1, 1),
    Sketcher.Constraint("Symmetric", 13, 3, 49, 3, -1, 1),
    Sketcher.Constraint("Symmetric", 15, 3, 51, 3, -1, 1),
    Sketcher.Constraint("Symmetric", 17, 3, 53, 3, -1, 1),
    Sketcher.Constraint("Symmetric", 21, 3, 57, 3, -1, 1),
    Sketcher.Constraint("Symmetric", 23, 3, 59, 3, -1, 1),
    Sketcher.Constraint("Symmetric", 25, 3, 61, 3, -1, 1),
    Sketcher.Constraint("Symmetric", 27, 3, 63, 3, -1, 1),
    Sketcher.Constraint("Symmetric", 29, 3, 65, 3, -1, 1),
    Sketcher.Constraint("Symmetric", 31, 3, 67, 3, -1, 1),
    Sketcher.Constraint("Symmetric", 33, 3, 69, 3, -1, 1),
    Sketcher.Constraint("Symmetric", 33, 3, 39, 3, -2),
    Sketcher.Constraint("Symmetric", 31, 3, 41, 3, -2),
    Sketcher.Constraint("Symmetric", 29, 3, 43, 3, -2),
    Sketcher.Constraint("Symmetric", 27, 3, 45, 3, -2),
    Sketcher.Constraint("Symmetric", 25, 3, 47, 3, -2),
    Sketcher.Constraint("Symmetric", 23, 3, 49, 3, -2),
    Sketcher.Constraint("Symmetric", 21, 3, 51, 3, -2),
    Sketcher.Constraint("Perpendicular", 4, 6),
    Sketcher.Constraint("Perpendicular", 6, 8),
    Sketcher.Constraint("Perpendicular", 10, 12),
    Sketcher.Constraint("Perpendicular", 12, 14),
    Sketcher.Constraint("Parallel", 2, 16),
    Sketcher.Constraint("Perpendicular", 16, 20),
    Sketcher.Constraint("Perpendicular", 8, 22),
    Sketcher.Constraint("Parallel", 20, 34),
    Sketcher.Constraint("Perpendicular", 52, 56),
    Sketcher.Constraint("Parallel", 56, 70),
    Sketcher.Constraint("Horizontal", 19, 3, 53, 3),
    Sketcher.Constraint("Equal", 36, 18),
    Sketcher.Constraint("Equal", 8, 10),
    Sketcher.Constraint("Equal", 6, 12),
    Sketcher.Constraint("Equal", 4, 14),
    Sketcher.Constraint("Equal", 2, 16),
    Sketcher.Constraint("Radius", 5, Q("0.03 in")),
    Sketcher.Constraint("Radius", 9, Q("0.08 in")),
    Sketcher.Constraint("Angle", 4, Q("-2 deg")),
    Sketcher.Constraint("Radius", 1, Q("0.125 in")),
    Sketcher.Constraint("DistanceX", 9, 3, -1, 1, Q("0.42 in")),
    Sketcher.Constraint("Distance", 6, Q("0.023 in")),
    Sketcher.Constraint("DistanceY", -1, 1, 1, 3, Q("0.3125 in")),
    Sketcher.Constraint("Radius", 3, Q("0.763339 mm")),
    Sketcher.Constraint("DistanceX", 7, 3, -1, 1, Q("0.1575 in")),
    Sketcher.Constraint("Distance", 2, Q("4.90697 mm")),
])
pocket1 = doc.addObject("PartDesign::Pocket", "Pocket")
body.addObject(pocket1)
pocket1.Profile = sketch2
pocket1.Length = Q("46 in")

doc.recompute()
